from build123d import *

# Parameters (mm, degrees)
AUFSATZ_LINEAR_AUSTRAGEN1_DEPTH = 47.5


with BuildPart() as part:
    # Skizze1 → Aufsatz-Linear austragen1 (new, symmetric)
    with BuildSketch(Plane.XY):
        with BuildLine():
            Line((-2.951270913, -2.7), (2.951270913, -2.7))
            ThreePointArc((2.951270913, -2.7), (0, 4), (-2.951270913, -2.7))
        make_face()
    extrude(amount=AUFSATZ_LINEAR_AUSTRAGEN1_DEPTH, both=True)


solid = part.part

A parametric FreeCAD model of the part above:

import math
import FreeCAD as App
import Part
import Sketcher

V = App.Vector

doc = App.newDocument("Part")
body = doc.addObject("PartDesign::Body", "Body")

sketch1 = body.newObject("Sketcher::SketchObject", "Sketch")
sketch1.AttachmentSupport = (doc.getObject("XY_Plane"), [""])
sketch1.MapMode = "FlatFace"
sketch1.addGeometry(Part.LineSegment(V(-3, -2.7, 0), V(3, -2.7, 0)), False)
sketch1.addGeometry(Part.ArcOfCircle(Part.Circle(V(0, 0, 0), V(0, 0, 1), 4), math.radians(-42), math.radians(222)), False)
sketch1.addConstraint(Sketcher.Constraint("Coincident", 0, 1, 1, 2))
sketch1.addConstraint(Sketcher.Constraint("Coincident", 1, 1, 0, 2))
sketch1.addConstraint(Sketcher.Constraint("Horizontal", 0))
sketch1.addConstraint(Sketcher.Constraint("Coincident", 1, 3, -1, 1))
sketch1.addConstraint(Sketcher.Constraint("Radius", 1, 4.0))
sketch1.addConstraint(Sketcher.Constraint("DistanceY", 0, 1, -1, 1, 2.7))
pad1 = body.newObject("PartDesign::Pad", "Pad")
pad1.Profile = sketch1
pad1.Length = 95
pad1.Midplane = True

doc.recompute()
